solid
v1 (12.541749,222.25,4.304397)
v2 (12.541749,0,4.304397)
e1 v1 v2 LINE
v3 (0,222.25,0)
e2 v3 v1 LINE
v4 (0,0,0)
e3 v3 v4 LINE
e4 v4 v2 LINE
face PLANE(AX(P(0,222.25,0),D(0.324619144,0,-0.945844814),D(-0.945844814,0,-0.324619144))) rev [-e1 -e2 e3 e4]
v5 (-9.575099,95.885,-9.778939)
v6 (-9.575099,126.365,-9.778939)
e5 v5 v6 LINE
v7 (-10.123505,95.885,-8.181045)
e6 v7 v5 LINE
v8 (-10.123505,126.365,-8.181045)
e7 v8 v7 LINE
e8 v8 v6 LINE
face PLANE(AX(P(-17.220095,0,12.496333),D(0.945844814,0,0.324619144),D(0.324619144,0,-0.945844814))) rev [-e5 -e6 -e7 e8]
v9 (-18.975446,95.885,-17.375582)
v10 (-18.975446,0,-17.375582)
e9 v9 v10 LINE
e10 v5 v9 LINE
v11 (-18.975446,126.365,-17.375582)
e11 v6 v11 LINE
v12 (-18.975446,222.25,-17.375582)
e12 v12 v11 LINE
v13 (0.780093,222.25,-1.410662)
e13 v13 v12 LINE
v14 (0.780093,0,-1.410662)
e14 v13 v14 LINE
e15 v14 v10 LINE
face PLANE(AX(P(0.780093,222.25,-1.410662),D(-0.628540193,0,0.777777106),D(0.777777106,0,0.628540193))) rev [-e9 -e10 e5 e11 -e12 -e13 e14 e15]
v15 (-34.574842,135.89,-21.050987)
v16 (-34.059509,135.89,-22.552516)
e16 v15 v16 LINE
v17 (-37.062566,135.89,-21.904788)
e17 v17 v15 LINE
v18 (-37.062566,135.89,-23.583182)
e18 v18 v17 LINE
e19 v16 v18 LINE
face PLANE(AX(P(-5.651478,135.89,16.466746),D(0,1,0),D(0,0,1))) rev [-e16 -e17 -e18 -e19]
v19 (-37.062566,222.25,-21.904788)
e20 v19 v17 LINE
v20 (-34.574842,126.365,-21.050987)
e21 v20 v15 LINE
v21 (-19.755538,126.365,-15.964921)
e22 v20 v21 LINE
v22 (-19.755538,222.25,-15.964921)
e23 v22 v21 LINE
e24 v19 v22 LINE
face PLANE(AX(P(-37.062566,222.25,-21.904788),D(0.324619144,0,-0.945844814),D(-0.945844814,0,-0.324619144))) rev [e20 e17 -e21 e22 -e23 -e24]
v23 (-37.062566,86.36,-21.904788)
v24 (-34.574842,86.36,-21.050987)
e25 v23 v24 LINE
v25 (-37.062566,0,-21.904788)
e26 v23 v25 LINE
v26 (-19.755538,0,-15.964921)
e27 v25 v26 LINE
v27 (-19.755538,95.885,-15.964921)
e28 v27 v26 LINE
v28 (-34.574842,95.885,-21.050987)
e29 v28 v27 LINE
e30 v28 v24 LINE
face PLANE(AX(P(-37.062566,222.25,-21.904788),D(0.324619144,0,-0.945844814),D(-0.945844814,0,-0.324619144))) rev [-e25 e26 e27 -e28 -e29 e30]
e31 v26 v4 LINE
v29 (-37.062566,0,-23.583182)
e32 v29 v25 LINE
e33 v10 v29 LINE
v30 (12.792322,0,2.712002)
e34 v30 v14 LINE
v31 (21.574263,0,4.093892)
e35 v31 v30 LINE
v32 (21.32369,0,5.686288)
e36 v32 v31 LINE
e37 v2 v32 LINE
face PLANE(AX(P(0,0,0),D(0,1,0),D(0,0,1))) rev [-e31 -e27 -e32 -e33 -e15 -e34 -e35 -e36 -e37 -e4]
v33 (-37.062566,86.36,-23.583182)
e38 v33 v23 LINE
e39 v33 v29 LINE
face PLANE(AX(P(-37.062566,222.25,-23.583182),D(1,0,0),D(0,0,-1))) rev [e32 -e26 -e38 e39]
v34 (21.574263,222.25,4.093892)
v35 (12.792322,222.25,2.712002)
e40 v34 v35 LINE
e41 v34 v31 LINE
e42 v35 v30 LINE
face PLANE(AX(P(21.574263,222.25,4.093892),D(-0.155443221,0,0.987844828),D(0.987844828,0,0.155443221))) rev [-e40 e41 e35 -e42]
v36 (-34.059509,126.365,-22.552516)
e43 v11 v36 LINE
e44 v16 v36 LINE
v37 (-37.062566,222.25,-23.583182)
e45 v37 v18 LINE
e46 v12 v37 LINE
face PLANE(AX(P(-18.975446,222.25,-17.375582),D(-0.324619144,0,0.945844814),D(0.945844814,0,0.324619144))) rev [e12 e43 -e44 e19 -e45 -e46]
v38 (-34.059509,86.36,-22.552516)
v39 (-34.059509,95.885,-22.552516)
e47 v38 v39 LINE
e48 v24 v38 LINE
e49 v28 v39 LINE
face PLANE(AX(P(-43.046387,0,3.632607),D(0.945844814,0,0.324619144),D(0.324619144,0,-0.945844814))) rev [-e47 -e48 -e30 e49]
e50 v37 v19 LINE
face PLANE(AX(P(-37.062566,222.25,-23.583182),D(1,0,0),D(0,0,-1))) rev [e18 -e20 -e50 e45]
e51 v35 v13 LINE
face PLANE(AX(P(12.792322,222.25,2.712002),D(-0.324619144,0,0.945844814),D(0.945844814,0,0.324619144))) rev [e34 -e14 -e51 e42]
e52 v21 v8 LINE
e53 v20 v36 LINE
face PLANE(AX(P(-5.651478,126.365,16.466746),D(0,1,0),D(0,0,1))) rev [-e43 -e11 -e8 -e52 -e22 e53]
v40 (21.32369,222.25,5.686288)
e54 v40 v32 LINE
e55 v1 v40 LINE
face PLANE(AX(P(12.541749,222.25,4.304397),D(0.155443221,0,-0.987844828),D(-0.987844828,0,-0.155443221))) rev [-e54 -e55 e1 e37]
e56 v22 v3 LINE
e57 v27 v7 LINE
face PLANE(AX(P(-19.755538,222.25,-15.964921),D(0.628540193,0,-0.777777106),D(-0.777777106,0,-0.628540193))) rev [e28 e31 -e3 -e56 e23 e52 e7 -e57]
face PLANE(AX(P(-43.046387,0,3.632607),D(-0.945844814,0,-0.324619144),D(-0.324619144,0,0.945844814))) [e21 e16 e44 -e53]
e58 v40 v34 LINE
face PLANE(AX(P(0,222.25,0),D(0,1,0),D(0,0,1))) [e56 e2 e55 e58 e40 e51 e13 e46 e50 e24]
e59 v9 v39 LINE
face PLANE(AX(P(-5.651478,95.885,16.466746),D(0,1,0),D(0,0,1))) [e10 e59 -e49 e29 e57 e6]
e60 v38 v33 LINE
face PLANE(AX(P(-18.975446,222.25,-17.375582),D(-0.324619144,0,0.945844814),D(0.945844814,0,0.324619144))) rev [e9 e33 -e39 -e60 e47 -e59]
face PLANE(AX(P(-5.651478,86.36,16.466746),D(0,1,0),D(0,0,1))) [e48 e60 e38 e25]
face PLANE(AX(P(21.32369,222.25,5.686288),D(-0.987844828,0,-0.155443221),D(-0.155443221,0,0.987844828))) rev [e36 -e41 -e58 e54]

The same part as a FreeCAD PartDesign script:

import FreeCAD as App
import Part
import Sketcher
from FreeCAD import Vector
Q = App.Units.Quantity

doc = App.newDocument("Part")
body = doc.addObject("PartDesign::Body", "Body")

# Sketch on XZ plane
sketch1 = doc.addObject("Sketcher::SketchObject", "Sketch")
body.addObject(sketch1)
sketch1.AttachmentSupport = (doc.XZ_Plane, [""])
sketch1.MapMode = "FlatFace"
sketch1.addGeometry([
    Part.LineSegment(Vector(-37.062566, -21.904788, 0), Vector(-19.755538, -15.964921, 0)),  # 0
    Part.LineSegment(Vector(-19.755538, -15.964921, 0), Vector(0, 0, 0)),  # 1
    Part.LineSegment(Vector(0, 0, 0), Vector(12.541749, 4.304397, 0)),  # 2
    Part.LineSegment(Vector(12.541749, 4.304397, 0), Vector(21.32369, 5.686288, 0)),  # 3
    Part.LineSegment(Vector(21.32369, 5.686288, 0), Vector(21.574263, 4.093892, 0)),  # 4
    Part.LineSegment(Vector(21.574263, 4.093892, 0), Vector(12.792322, 2.712002, 0)),  # 5
    Part.LineSegment(Vector(12.792322, 2.712002, 0), Vector(0.780093, -1.410662, 0)),  # 6
    Part.LineSegment(Vector(0.780093, -1.410662, 0), Vector(-18.975446, -17.375582, 0)),  # 7
    Part.LineSegment(Vector(-18.975446, -17.375582, 0), Vector(-37.062566, -23.583182, 0)),  # 8
    Part.LineSegment(Vector(-37.062566, -23.583182, 0), Vector(-37.062566, -21.904788, 0)),  # 9
], False)
sketch1.addConstraint([
    Sketcher.Constraint("Coincident", 0, 2, 1, 1),
    Sketcher.Constraint("Coincident", 1, 2, 2, 1),
    Sketcher.Constraint("Coincident", 2, 2, 3, 1),
    Sketcher.Constraint("Coincident", 3, 2, 4, 1),
    Sketcher.Constraint("Coincident", 4, 2, 5, 1),
    Sketcher.Constraint("Coincident", 5, 2, 6, 1),
    Sketcher.Constraint("Coincident", 6, 2, 7, 1),
    Sketcher.Constraint("Coincident", 7, 2, 8, 1),
    Sketcher.Constraint("Coincident", 8, 2, 9, 1),
    Sketcher.Constraint("Coincident", 9, 2, 0, 1),
    Sketcher.Constraint("Vertical", 9),
    Sketcher.Constraint("Coincident", 1, 2, -1, 1),
    Sketcher.Constraint("Parallel", 0, 2),
    Sketcher.Constraint("Perpendicular", 3, 4),
    Sketcher.Constraint("Perpendicular", 4, 5),
    Sketcher.Constraint("Parallel", 2, 6),
    Sketcher.Constraint("Parallel", 1, 7),
    Sketcher.Constraint("Parallel", 6, 8),
    Sketcher.Constraint("Equal", 3, 5),
    Sketcher.Constraint("Equal", 1, 7),
    Sketcher.Constraint("Distance", 1, Q("1 in")),
    Sketcher.Constraint("Distance", 6, Q("0.5 in")),
    Sketcher.Constraint("Distance", 3, Q("0.35 in")),
    Sketcher.Constraint("DistanceY", -1, 1, 5, 2, Q("2.712002 mm")),
    Sketcher.Constraint("DistanceX", 0, 2, 4, 2, Q("41.329801 mm")),
    Sketcher.Constraint("DistanceY", 8, 2, 7, 2, Q("6.207599 mm")),
    Sketcher.Constraint("Distance", 2, Q("13.259838 mm")),
    Sketcher.Constraint("Distance", 4, Q("1.61199 mm")),
    Sketcher.Constraint("DistanceY", 9, 1, 9, 2, Q("1.678394 mm")),
])
pad1 = doc.addObject("PartDesign::Pad", "Pad")
body.addObject(pad1)
pad1.Profile = sketch1
pad1.Length = Q("8.75 in")
pad1.Reversed = True

# Sketch on an angled plane
sketch2 = doc.addObject("Sketcher::SketchObject", "Sketch001")
body.addObject(sketch2)
sketch2.Placement = App.Placement(Vector(3.335401, 0, -9.718377), App.Rotation(Vector(-0.945844814, 0, -0.324619144), Vector(0, 1.000000001, 0), Vector(0.324619144, 0, -0.945844814), "ZXY"))
sketch2.addGeometry([
    Part.LineSegment(Vector(39.535988, 135.89, 0), Vector(39.535988, 126.365, 0)),  # 0
    Part.LineSegment(Vector(39.535988, 126.365, 0), Vector(12.230988, 126.365, 0)),  # 1
    Part.LineSegment(Vector(12.230988, 126.365, 0), Vector(12.230988, 95.885, 0)),  # 2
    Part.LineSegment(Vector(12.230988, 95.885, 0), Vector(39.535988, 95.885, 0)),  # 3
    Part.LineSegment(Vector(39.535988, 95.885, 0), Vector(39.535988, 86.36, 0)),  # 4
    Part.LineSegment(Vector(39.535988, 86.36, 0), Vector(42.710989, 86.36, 0)),  # 5
    Part.LineSegment(Vector(42.710989, 86.36, 0), Vector(42.710989, 135.89, 0)),  # 6
    Part.LineSegment(Vector(42.710989, 135.89, 0), Vector(39.535988, 135.89, 0)),  # 7
], False)
sketch2.addConstraint([
    Sketcher.Constraint("Coincident", 0, 2, 1, 1),
    Sketcher.Constraint("Coincident", 1, 2, 2, 1),
    Sketcher.Constraint("Coincident", 2, 2, 3, 1),
    Sketcher.Constraint("Coincident", 3, 2, 4, 1),
    Sketcher.Constraint("Coincident", 4, 2, 5, 1),
    Sketcher.Constraint("Coincident", 5, 2, 6, 1),
    Sketcher.Constraint("Coincident", 6, 2, 7, 1),
    Sketcher.Constraint("Coincident", 7, 2, 0, 1),
    Sketcher.Constraint("Vertical", 0),
    Sketcher.Constraint("Horizontal", 1),
    Sketcher.Constraint("Vertical", 2),
    Sketcher.Constraint("Horizontal", 3),
    Sketcher.Constraint("Vertical", 4),
    Sketcher.Constraint("Horizontal", 5),
    Sketcher.Constraint("Vertical", 6),
    Sketcher.Constraint("Horizontal", 7),
    Sketcher.Constraint("Vertical", 0, 2, 3, 2),
    Sketcher.Constraint("Equal", 0, 4),
    Sketcher.Constraint("DistanceY", 2, 2, 2, 1, Q("1.2 in")),
    Sketcher.Constraint("DistanceY", 6, 1, 6, 2, Q("1.95 in")),
    Sketcher.Constraint("DistanceY", -1, 1, 4, 2, Q("3.4 in")),
    Sketcher.Constraint("DistanceX", 2, 2, 5, 2, Q("1.2 in")),
    Sketcher.Constraint("DistanceX", 1, 2, 1, 1, Q("1.075 in")),
    Sketcher.Constraint("DistanceX", -1, 1, 0, 2, Q("39.535988 mm")),
])
pocket1 = doc.addObject("PartDesign::Pocket", "Pocket")
body.addObject(pocket1)
pocket1.Profile = sketch2
pocket1.Type = "ThroughAll"
pocket1.Midplane = True

doc.recompute()
